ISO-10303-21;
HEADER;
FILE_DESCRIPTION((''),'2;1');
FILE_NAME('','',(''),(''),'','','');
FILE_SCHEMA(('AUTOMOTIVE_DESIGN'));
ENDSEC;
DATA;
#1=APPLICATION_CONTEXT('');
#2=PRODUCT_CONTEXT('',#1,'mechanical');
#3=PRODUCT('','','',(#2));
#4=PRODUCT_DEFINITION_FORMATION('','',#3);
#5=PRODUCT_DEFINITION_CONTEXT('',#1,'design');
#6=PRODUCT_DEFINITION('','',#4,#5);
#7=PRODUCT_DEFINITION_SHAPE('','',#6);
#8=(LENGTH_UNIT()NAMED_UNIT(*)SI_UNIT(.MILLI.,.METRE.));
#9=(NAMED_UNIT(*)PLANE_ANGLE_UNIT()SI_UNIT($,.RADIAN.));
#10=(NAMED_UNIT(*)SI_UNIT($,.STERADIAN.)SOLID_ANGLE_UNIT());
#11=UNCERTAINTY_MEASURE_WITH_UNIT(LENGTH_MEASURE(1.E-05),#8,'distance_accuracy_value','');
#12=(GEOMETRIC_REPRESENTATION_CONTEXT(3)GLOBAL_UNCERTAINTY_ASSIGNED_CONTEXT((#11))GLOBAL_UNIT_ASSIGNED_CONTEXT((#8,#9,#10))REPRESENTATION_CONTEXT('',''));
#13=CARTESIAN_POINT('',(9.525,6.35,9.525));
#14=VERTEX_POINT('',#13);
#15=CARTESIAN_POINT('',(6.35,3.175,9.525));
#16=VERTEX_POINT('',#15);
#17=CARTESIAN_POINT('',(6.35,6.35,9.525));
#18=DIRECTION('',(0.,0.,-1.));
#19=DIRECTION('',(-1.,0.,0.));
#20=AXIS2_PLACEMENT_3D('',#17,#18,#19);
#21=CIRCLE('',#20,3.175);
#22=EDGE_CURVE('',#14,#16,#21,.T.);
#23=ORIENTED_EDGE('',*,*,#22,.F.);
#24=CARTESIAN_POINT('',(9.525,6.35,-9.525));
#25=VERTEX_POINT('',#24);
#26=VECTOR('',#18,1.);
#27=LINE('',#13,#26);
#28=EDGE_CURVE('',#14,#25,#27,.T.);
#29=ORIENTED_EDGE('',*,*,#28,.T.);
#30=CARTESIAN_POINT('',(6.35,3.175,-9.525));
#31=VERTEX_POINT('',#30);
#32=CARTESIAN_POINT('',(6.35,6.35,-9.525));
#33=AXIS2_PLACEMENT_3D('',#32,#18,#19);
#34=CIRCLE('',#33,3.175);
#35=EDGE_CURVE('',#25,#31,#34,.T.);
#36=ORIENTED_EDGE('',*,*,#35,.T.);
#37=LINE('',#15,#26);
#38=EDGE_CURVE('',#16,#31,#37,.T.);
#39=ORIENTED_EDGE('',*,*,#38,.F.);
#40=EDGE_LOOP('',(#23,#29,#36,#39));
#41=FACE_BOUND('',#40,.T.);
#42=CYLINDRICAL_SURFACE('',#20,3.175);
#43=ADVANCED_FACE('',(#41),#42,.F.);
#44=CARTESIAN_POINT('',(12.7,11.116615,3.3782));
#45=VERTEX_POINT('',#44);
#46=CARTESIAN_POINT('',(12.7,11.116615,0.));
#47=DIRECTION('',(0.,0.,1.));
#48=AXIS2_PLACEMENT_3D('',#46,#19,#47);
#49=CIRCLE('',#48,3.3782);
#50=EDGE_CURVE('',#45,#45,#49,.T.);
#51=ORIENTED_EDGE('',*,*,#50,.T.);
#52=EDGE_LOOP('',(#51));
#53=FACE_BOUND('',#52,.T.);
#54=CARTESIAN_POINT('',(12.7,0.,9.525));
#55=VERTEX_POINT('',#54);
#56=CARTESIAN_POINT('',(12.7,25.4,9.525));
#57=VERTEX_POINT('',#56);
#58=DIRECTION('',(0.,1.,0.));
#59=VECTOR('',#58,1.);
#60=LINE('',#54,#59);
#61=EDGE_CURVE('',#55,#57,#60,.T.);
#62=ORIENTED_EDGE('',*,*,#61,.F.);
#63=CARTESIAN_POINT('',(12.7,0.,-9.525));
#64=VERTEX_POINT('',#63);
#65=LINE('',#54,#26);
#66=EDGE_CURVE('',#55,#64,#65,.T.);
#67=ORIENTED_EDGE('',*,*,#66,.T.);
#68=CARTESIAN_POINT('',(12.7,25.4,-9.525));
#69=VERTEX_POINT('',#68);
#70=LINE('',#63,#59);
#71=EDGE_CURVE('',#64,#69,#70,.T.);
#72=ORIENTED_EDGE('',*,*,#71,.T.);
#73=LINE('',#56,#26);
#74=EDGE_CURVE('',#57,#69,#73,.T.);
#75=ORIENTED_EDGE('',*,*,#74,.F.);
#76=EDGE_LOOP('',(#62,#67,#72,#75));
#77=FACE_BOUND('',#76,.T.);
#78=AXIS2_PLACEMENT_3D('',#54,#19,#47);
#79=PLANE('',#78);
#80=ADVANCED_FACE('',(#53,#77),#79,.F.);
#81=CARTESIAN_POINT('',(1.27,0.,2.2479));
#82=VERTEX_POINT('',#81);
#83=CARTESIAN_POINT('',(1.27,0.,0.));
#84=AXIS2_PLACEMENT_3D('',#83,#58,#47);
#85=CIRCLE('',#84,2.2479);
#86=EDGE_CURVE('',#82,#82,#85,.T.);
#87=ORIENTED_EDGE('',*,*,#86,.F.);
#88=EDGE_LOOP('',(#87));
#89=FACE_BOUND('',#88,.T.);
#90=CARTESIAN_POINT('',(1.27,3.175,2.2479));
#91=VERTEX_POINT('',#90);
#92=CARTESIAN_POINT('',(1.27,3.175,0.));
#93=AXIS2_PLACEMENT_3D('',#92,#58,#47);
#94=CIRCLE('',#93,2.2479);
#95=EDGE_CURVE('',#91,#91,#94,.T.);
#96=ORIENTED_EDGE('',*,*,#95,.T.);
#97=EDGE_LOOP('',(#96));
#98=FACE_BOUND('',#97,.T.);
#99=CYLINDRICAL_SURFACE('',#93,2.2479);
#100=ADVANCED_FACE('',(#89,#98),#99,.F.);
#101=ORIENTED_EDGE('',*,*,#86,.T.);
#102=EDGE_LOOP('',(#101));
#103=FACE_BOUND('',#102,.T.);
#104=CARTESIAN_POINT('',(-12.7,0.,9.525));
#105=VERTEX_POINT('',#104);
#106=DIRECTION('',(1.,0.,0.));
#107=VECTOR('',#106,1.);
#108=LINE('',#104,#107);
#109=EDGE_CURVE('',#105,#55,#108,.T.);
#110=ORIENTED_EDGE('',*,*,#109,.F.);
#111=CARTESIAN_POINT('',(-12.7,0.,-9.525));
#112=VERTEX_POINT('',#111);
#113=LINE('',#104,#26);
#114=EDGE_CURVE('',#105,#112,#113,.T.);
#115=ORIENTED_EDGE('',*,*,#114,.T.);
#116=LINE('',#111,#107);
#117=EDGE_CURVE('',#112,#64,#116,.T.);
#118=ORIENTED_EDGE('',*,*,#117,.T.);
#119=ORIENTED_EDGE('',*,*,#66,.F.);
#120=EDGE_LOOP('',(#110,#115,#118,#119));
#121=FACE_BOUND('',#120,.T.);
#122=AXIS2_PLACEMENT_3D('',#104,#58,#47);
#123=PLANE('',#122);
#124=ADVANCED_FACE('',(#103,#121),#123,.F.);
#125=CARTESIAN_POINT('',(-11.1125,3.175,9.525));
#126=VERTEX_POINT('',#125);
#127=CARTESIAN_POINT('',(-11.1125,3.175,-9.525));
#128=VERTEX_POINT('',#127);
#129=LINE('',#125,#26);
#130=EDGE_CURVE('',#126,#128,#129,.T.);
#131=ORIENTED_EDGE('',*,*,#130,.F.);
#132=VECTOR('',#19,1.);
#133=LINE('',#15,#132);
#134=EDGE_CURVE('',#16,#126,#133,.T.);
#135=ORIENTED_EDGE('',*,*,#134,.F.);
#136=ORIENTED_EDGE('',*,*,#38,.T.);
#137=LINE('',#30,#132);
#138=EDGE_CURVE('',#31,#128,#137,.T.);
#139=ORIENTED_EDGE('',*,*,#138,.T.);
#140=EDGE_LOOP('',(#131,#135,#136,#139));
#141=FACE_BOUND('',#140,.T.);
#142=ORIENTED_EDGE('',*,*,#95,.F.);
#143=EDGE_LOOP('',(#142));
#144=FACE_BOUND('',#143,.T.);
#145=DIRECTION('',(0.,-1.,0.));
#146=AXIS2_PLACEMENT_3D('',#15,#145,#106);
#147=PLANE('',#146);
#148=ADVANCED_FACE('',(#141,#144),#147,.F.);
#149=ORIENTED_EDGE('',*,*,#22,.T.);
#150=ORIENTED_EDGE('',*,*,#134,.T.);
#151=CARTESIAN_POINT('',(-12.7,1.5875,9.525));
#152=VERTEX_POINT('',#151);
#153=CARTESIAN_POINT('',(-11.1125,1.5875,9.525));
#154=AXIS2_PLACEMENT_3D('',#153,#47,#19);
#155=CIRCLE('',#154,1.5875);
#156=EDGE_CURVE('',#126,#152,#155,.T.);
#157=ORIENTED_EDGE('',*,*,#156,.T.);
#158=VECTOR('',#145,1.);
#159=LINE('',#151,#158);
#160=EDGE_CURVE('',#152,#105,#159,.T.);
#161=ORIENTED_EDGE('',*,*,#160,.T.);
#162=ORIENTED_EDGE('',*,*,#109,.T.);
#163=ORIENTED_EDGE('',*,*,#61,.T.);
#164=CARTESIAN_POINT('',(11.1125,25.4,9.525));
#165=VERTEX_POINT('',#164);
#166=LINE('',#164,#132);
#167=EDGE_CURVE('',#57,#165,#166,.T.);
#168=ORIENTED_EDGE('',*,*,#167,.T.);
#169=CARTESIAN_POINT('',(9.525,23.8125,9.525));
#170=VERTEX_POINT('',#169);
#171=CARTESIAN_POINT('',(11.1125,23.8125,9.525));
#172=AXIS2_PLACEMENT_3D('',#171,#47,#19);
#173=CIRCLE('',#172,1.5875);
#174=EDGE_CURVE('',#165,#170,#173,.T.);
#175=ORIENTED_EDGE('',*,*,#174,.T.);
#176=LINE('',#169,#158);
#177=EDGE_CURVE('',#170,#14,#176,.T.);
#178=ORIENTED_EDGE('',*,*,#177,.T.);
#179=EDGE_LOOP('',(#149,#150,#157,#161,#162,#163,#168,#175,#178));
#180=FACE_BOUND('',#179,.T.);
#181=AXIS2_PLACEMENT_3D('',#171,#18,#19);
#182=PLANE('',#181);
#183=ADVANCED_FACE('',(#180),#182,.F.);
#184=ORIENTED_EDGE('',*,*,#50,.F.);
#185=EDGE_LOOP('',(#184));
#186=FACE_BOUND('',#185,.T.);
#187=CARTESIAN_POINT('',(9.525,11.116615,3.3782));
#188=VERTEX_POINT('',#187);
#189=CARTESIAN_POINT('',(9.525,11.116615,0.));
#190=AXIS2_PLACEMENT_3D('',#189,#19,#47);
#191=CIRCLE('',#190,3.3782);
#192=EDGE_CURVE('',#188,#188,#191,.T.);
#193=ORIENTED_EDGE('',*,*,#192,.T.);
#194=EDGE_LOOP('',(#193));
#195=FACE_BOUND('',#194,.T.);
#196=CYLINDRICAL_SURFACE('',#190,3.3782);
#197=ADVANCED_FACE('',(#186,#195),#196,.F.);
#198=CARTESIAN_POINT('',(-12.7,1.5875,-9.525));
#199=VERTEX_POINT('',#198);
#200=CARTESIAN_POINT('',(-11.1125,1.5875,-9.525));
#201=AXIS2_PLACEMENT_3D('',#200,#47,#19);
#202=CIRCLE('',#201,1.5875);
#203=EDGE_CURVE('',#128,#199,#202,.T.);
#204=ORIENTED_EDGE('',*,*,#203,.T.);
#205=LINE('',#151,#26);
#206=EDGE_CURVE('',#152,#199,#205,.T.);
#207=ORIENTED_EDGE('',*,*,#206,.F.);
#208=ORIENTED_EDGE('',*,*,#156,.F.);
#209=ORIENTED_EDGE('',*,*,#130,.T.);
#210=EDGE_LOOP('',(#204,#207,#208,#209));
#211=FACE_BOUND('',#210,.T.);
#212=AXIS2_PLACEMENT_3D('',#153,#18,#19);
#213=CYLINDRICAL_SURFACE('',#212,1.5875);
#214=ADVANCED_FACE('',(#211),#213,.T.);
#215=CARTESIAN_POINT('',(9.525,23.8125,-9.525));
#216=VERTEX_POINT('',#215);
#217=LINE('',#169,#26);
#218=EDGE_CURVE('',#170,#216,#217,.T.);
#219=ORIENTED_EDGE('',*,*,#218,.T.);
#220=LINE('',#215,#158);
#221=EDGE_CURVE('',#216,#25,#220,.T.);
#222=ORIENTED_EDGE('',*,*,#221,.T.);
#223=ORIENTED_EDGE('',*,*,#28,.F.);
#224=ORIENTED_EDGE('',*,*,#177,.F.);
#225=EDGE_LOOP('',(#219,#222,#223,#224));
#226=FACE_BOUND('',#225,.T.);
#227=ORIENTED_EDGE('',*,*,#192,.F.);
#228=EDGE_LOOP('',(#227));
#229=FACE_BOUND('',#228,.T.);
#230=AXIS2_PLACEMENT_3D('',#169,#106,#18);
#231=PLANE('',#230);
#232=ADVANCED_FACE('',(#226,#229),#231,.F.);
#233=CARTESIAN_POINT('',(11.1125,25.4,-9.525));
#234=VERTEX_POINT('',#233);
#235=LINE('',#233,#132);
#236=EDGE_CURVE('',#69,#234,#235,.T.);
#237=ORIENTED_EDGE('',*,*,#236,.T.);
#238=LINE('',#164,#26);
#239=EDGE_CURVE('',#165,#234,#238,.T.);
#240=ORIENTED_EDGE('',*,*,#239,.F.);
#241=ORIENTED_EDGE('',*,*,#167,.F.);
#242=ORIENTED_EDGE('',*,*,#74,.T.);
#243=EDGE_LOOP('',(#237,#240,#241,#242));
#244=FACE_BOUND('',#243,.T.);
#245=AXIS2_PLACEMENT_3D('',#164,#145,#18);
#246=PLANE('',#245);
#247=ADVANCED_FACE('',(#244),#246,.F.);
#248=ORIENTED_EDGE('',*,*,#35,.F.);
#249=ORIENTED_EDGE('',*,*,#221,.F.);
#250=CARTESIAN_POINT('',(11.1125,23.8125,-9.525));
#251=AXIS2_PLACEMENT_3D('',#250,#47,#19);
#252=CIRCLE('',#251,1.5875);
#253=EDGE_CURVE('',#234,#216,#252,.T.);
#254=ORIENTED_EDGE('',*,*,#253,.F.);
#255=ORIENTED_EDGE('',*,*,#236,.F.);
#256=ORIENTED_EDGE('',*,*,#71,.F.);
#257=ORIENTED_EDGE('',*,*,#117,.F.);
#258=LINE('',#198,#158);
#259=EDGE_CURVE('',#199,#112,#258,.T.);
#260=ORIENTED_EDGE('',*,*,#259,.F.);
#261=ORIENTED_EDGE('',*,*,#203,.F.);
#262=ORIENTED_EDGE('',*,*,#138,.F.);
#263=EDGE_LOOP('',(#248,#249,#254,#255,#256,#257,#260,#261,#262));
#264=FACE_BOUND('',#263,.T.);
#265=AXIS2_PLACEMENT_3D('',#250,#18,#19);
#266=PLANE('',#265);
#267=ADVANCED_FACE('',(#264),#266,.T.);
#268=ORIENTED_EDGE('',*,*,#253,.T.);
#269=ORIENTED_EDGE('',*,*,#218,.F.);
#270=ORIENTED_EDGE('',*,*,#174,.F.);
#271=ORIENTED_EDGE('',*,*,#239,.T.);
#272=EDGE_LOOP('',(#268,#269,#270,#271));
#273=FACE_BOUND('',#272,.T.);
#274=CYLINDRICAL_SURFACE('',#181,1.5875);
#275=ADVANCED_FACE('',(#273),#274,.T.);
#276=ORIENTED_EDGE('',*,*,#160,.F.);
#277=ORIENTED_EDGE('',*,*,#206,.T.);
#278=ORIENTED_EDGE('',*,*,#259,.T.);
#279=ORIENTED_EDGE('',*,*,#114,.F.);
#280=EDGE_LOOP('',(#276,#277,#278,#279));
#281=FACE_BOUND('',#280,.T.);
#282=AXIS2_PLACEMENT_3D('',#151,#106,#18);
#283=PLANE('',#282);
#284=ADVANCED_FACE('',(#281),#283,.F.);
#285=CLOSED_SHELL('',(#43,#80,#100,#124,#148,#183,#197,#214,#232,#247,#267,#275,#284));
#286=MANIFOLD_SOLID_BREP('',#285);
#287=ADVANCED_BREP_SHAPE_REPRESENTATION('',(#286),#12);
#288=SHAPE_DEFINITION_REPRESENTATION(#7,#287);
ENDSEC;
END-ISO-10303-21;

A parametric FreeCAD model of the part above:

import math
import FreeCAD as App
import Part
import Sketcher
Q = App.Units.Quantity

doc = App.newDocument("Part")
body = doc.addObject("PartDesign::Body", "Body")

# Sketch on XY plane
sketch1 = doc.addObject("Sketcher::SketchObject", "Sketch")
body.addObject(sketch1)
sketch1.AttachmentSupport = (doc.XY_Plane, [""])
sketch1.MapMode = "FlatFace"
sketch1.addGeometry([
    Part.LineSegment(App.Vector(-12.7, 0, 0), App.Vector(12.7, 0, 0)),  # 0
    Part.LineSegment(App.Vector(12.7, 0, 0), App.Vector(12.7, 25.4, 0)),  # 1
    Part.LineSegment(App.Vector(12.7, 25.4, 0), App.Vector(11.1, 25.4, 0)),  # 2
    Part.ArcOfCircle(Part.Circle(App.Vector(11.1, 23.8, 0), App.Vector(0, 0, 1), 1.6), math.radians(90), math.radians(180)),  # 3
    Part.LineSegment(App.Vector(9.5, 23.8, 0), App.Vector(9.5, 6.3, 0)),  # 4
    Part.ArcOfCircle(Part.Circle(App.Vector(6.3, 6.4, 0), App.Vector(0, 0, 1), 3.2), math.radians(-90), math.radians(0)),  # 5
    Part.LineSegment(App.Vector(6.3, 3.2, 0), App.Vector(-11.1, 3.2, 0)),  # 6
    Part.ArcOfCircle(Part.Circle(App.Vector(-11.1, 1.6, 0), App.Vector(0, 0, 1), 1.6), math.radians(90), math.radians(180)),  # 7
    Part.LineSegment(App.Vector(-12.7, 1.6, 0), App.Vector(-12.7, 0, 0)),  # 8
], False)
sketch1.addConstraint([
    Sketcher.Constraint("Coincident", 0, 2, 1, 1),
    Sketcher.Constraint("Coincident", 1, 2, 2, 1),
    Sketcher.Constraint("Tangent", 2, 2, 3, 1),
    Sketcher.Constraint("Tangent", 3, 2, 4, 1),
    Sketcher.Constraint("Tangent", 4, 2, 5, 2),
    Sketcher.Constraint("Tangent", 5, 1, 6, 1),
    Sketcher.Constraint("Tangent", 6, 2, 7, 1),
    Sketcher.Constraint("Tangent", 7, 2, 8, 1),
    Sketcher.Constraint("Coincident", 8, 2, 0, 1),
    Sketcher.Constraint("Horizontal", 0),
    Sketcher.Constraint("Vertical", 1),
    Sketcher.Constraint("Horizontal", 2),
    Sketcher.Constraint("Vertical", 4),
    Sketcher.Constraint("Horizontal", 6),
    Sketcher.Constraint("Vertical", 8),
    Sketcher.Constraint("Equal", 3, 7),
    Sketcher.Constraint("Symmetric", 0, 2, 8, 2, -1, 1),
    Sketcher.Constraint("Equal", 0, 1),
    Sketcher.Constraint("Equal", 6, 4),
    Sketcher.Constraint("DistanceX", 0, 1, 0, 2, Q("1 in")),
    Sketcher.Constraint("Radius", 3, Q("0.0625 in")),
    Sketcher.Constraint("Radius", 5, Q("0.125 in")),
    Sketcher.Constraint("DistanceX", 2, 2, 2, 1, Q("0.0625 in")),
])
pad1 = doc.addObject("PartDesign::Pad", "Pad")
body.addObject(pad1)
pad1.Profile = sketch1
pad1.Length = Q("0.75 in")
pad1.Midplane = True

# Sketch on YZ plane
sketch2 = doc.addObject("Sketcher::SketchObject", "Sketch001")
body.addObject(sketch2)
sketch2.AttachmentSupport = (doc.YZ_Plane, [""])
sketch2.MapMode = "FlatFace"
sketch2.AttachmentOffset = App.Placement(App.Vector(0, 0, 0.375 * 25.4), App.Rotation())
sketch2.addGeometry(Part.Circle(App.Vector(11.1, 0, 0), App.Vector(0, 0, 1), 3.4), False)
sketch2.addConstraint([
    Sketcher.Constraint("PointOnObject", 0, 3, -1),
    Sketcher.Constraint("Diameter", 0, Q("0.266 in")),
    Sketcher.Constraint("DistanceX", -1, 1, 0, 3, Q("11.116615 mm")),
])
doc.recompute()
hole = doc.addObject("PartDesign::Hole", "Hole")
body.addObject(hole)
hole.Profile = sketch2
hole.ThreadType = "None"
hole.Diameter = Q("0.266 in")
hole.DepthType = "ThroughAll"
hole.Reversed = True

# Sketch on XZ plane
sketch3 = doc.addObject("Sketcher::SketchObject", "Sketch002")
body.addObject(sketch3)
sketch3.AttachmentSupport = (doc.XZ_Plane, [""])
sketch3.MapMode = "FlatFace"
sketch3.AttachmentOffset = App.Placement(App.Vector(0, 0, -0.125 * 25.4), App.Rotation())
sketch3.addGeometry(Part.Circle(App.Vector(1.3, 0, 0), App.Vector(0, 0, 1), 2.2), False)
sketch3.addConstraint([
    Sketcher.Constraint("PointOnObject", 0, 3, -1),
    Sketcher.Constraint("Diameter", 0, Q("0.177 in")),
    Sketcher.Constraint("DistanceX", -1, 1, 0, 3, Q("0.05 in")),
])
doc.recompute()
hole2 = doc.addObject("PartDesign::Hole", "Hole001")
body.addObject(hole2)
hole2.Profile = sketch3
hole2.ThreadType = "None"
hole2.Diameter = Q("0.177 in")
hole2.DepthType = "ThroughAll"
hole2.Reversed = True

doc.recompute()
